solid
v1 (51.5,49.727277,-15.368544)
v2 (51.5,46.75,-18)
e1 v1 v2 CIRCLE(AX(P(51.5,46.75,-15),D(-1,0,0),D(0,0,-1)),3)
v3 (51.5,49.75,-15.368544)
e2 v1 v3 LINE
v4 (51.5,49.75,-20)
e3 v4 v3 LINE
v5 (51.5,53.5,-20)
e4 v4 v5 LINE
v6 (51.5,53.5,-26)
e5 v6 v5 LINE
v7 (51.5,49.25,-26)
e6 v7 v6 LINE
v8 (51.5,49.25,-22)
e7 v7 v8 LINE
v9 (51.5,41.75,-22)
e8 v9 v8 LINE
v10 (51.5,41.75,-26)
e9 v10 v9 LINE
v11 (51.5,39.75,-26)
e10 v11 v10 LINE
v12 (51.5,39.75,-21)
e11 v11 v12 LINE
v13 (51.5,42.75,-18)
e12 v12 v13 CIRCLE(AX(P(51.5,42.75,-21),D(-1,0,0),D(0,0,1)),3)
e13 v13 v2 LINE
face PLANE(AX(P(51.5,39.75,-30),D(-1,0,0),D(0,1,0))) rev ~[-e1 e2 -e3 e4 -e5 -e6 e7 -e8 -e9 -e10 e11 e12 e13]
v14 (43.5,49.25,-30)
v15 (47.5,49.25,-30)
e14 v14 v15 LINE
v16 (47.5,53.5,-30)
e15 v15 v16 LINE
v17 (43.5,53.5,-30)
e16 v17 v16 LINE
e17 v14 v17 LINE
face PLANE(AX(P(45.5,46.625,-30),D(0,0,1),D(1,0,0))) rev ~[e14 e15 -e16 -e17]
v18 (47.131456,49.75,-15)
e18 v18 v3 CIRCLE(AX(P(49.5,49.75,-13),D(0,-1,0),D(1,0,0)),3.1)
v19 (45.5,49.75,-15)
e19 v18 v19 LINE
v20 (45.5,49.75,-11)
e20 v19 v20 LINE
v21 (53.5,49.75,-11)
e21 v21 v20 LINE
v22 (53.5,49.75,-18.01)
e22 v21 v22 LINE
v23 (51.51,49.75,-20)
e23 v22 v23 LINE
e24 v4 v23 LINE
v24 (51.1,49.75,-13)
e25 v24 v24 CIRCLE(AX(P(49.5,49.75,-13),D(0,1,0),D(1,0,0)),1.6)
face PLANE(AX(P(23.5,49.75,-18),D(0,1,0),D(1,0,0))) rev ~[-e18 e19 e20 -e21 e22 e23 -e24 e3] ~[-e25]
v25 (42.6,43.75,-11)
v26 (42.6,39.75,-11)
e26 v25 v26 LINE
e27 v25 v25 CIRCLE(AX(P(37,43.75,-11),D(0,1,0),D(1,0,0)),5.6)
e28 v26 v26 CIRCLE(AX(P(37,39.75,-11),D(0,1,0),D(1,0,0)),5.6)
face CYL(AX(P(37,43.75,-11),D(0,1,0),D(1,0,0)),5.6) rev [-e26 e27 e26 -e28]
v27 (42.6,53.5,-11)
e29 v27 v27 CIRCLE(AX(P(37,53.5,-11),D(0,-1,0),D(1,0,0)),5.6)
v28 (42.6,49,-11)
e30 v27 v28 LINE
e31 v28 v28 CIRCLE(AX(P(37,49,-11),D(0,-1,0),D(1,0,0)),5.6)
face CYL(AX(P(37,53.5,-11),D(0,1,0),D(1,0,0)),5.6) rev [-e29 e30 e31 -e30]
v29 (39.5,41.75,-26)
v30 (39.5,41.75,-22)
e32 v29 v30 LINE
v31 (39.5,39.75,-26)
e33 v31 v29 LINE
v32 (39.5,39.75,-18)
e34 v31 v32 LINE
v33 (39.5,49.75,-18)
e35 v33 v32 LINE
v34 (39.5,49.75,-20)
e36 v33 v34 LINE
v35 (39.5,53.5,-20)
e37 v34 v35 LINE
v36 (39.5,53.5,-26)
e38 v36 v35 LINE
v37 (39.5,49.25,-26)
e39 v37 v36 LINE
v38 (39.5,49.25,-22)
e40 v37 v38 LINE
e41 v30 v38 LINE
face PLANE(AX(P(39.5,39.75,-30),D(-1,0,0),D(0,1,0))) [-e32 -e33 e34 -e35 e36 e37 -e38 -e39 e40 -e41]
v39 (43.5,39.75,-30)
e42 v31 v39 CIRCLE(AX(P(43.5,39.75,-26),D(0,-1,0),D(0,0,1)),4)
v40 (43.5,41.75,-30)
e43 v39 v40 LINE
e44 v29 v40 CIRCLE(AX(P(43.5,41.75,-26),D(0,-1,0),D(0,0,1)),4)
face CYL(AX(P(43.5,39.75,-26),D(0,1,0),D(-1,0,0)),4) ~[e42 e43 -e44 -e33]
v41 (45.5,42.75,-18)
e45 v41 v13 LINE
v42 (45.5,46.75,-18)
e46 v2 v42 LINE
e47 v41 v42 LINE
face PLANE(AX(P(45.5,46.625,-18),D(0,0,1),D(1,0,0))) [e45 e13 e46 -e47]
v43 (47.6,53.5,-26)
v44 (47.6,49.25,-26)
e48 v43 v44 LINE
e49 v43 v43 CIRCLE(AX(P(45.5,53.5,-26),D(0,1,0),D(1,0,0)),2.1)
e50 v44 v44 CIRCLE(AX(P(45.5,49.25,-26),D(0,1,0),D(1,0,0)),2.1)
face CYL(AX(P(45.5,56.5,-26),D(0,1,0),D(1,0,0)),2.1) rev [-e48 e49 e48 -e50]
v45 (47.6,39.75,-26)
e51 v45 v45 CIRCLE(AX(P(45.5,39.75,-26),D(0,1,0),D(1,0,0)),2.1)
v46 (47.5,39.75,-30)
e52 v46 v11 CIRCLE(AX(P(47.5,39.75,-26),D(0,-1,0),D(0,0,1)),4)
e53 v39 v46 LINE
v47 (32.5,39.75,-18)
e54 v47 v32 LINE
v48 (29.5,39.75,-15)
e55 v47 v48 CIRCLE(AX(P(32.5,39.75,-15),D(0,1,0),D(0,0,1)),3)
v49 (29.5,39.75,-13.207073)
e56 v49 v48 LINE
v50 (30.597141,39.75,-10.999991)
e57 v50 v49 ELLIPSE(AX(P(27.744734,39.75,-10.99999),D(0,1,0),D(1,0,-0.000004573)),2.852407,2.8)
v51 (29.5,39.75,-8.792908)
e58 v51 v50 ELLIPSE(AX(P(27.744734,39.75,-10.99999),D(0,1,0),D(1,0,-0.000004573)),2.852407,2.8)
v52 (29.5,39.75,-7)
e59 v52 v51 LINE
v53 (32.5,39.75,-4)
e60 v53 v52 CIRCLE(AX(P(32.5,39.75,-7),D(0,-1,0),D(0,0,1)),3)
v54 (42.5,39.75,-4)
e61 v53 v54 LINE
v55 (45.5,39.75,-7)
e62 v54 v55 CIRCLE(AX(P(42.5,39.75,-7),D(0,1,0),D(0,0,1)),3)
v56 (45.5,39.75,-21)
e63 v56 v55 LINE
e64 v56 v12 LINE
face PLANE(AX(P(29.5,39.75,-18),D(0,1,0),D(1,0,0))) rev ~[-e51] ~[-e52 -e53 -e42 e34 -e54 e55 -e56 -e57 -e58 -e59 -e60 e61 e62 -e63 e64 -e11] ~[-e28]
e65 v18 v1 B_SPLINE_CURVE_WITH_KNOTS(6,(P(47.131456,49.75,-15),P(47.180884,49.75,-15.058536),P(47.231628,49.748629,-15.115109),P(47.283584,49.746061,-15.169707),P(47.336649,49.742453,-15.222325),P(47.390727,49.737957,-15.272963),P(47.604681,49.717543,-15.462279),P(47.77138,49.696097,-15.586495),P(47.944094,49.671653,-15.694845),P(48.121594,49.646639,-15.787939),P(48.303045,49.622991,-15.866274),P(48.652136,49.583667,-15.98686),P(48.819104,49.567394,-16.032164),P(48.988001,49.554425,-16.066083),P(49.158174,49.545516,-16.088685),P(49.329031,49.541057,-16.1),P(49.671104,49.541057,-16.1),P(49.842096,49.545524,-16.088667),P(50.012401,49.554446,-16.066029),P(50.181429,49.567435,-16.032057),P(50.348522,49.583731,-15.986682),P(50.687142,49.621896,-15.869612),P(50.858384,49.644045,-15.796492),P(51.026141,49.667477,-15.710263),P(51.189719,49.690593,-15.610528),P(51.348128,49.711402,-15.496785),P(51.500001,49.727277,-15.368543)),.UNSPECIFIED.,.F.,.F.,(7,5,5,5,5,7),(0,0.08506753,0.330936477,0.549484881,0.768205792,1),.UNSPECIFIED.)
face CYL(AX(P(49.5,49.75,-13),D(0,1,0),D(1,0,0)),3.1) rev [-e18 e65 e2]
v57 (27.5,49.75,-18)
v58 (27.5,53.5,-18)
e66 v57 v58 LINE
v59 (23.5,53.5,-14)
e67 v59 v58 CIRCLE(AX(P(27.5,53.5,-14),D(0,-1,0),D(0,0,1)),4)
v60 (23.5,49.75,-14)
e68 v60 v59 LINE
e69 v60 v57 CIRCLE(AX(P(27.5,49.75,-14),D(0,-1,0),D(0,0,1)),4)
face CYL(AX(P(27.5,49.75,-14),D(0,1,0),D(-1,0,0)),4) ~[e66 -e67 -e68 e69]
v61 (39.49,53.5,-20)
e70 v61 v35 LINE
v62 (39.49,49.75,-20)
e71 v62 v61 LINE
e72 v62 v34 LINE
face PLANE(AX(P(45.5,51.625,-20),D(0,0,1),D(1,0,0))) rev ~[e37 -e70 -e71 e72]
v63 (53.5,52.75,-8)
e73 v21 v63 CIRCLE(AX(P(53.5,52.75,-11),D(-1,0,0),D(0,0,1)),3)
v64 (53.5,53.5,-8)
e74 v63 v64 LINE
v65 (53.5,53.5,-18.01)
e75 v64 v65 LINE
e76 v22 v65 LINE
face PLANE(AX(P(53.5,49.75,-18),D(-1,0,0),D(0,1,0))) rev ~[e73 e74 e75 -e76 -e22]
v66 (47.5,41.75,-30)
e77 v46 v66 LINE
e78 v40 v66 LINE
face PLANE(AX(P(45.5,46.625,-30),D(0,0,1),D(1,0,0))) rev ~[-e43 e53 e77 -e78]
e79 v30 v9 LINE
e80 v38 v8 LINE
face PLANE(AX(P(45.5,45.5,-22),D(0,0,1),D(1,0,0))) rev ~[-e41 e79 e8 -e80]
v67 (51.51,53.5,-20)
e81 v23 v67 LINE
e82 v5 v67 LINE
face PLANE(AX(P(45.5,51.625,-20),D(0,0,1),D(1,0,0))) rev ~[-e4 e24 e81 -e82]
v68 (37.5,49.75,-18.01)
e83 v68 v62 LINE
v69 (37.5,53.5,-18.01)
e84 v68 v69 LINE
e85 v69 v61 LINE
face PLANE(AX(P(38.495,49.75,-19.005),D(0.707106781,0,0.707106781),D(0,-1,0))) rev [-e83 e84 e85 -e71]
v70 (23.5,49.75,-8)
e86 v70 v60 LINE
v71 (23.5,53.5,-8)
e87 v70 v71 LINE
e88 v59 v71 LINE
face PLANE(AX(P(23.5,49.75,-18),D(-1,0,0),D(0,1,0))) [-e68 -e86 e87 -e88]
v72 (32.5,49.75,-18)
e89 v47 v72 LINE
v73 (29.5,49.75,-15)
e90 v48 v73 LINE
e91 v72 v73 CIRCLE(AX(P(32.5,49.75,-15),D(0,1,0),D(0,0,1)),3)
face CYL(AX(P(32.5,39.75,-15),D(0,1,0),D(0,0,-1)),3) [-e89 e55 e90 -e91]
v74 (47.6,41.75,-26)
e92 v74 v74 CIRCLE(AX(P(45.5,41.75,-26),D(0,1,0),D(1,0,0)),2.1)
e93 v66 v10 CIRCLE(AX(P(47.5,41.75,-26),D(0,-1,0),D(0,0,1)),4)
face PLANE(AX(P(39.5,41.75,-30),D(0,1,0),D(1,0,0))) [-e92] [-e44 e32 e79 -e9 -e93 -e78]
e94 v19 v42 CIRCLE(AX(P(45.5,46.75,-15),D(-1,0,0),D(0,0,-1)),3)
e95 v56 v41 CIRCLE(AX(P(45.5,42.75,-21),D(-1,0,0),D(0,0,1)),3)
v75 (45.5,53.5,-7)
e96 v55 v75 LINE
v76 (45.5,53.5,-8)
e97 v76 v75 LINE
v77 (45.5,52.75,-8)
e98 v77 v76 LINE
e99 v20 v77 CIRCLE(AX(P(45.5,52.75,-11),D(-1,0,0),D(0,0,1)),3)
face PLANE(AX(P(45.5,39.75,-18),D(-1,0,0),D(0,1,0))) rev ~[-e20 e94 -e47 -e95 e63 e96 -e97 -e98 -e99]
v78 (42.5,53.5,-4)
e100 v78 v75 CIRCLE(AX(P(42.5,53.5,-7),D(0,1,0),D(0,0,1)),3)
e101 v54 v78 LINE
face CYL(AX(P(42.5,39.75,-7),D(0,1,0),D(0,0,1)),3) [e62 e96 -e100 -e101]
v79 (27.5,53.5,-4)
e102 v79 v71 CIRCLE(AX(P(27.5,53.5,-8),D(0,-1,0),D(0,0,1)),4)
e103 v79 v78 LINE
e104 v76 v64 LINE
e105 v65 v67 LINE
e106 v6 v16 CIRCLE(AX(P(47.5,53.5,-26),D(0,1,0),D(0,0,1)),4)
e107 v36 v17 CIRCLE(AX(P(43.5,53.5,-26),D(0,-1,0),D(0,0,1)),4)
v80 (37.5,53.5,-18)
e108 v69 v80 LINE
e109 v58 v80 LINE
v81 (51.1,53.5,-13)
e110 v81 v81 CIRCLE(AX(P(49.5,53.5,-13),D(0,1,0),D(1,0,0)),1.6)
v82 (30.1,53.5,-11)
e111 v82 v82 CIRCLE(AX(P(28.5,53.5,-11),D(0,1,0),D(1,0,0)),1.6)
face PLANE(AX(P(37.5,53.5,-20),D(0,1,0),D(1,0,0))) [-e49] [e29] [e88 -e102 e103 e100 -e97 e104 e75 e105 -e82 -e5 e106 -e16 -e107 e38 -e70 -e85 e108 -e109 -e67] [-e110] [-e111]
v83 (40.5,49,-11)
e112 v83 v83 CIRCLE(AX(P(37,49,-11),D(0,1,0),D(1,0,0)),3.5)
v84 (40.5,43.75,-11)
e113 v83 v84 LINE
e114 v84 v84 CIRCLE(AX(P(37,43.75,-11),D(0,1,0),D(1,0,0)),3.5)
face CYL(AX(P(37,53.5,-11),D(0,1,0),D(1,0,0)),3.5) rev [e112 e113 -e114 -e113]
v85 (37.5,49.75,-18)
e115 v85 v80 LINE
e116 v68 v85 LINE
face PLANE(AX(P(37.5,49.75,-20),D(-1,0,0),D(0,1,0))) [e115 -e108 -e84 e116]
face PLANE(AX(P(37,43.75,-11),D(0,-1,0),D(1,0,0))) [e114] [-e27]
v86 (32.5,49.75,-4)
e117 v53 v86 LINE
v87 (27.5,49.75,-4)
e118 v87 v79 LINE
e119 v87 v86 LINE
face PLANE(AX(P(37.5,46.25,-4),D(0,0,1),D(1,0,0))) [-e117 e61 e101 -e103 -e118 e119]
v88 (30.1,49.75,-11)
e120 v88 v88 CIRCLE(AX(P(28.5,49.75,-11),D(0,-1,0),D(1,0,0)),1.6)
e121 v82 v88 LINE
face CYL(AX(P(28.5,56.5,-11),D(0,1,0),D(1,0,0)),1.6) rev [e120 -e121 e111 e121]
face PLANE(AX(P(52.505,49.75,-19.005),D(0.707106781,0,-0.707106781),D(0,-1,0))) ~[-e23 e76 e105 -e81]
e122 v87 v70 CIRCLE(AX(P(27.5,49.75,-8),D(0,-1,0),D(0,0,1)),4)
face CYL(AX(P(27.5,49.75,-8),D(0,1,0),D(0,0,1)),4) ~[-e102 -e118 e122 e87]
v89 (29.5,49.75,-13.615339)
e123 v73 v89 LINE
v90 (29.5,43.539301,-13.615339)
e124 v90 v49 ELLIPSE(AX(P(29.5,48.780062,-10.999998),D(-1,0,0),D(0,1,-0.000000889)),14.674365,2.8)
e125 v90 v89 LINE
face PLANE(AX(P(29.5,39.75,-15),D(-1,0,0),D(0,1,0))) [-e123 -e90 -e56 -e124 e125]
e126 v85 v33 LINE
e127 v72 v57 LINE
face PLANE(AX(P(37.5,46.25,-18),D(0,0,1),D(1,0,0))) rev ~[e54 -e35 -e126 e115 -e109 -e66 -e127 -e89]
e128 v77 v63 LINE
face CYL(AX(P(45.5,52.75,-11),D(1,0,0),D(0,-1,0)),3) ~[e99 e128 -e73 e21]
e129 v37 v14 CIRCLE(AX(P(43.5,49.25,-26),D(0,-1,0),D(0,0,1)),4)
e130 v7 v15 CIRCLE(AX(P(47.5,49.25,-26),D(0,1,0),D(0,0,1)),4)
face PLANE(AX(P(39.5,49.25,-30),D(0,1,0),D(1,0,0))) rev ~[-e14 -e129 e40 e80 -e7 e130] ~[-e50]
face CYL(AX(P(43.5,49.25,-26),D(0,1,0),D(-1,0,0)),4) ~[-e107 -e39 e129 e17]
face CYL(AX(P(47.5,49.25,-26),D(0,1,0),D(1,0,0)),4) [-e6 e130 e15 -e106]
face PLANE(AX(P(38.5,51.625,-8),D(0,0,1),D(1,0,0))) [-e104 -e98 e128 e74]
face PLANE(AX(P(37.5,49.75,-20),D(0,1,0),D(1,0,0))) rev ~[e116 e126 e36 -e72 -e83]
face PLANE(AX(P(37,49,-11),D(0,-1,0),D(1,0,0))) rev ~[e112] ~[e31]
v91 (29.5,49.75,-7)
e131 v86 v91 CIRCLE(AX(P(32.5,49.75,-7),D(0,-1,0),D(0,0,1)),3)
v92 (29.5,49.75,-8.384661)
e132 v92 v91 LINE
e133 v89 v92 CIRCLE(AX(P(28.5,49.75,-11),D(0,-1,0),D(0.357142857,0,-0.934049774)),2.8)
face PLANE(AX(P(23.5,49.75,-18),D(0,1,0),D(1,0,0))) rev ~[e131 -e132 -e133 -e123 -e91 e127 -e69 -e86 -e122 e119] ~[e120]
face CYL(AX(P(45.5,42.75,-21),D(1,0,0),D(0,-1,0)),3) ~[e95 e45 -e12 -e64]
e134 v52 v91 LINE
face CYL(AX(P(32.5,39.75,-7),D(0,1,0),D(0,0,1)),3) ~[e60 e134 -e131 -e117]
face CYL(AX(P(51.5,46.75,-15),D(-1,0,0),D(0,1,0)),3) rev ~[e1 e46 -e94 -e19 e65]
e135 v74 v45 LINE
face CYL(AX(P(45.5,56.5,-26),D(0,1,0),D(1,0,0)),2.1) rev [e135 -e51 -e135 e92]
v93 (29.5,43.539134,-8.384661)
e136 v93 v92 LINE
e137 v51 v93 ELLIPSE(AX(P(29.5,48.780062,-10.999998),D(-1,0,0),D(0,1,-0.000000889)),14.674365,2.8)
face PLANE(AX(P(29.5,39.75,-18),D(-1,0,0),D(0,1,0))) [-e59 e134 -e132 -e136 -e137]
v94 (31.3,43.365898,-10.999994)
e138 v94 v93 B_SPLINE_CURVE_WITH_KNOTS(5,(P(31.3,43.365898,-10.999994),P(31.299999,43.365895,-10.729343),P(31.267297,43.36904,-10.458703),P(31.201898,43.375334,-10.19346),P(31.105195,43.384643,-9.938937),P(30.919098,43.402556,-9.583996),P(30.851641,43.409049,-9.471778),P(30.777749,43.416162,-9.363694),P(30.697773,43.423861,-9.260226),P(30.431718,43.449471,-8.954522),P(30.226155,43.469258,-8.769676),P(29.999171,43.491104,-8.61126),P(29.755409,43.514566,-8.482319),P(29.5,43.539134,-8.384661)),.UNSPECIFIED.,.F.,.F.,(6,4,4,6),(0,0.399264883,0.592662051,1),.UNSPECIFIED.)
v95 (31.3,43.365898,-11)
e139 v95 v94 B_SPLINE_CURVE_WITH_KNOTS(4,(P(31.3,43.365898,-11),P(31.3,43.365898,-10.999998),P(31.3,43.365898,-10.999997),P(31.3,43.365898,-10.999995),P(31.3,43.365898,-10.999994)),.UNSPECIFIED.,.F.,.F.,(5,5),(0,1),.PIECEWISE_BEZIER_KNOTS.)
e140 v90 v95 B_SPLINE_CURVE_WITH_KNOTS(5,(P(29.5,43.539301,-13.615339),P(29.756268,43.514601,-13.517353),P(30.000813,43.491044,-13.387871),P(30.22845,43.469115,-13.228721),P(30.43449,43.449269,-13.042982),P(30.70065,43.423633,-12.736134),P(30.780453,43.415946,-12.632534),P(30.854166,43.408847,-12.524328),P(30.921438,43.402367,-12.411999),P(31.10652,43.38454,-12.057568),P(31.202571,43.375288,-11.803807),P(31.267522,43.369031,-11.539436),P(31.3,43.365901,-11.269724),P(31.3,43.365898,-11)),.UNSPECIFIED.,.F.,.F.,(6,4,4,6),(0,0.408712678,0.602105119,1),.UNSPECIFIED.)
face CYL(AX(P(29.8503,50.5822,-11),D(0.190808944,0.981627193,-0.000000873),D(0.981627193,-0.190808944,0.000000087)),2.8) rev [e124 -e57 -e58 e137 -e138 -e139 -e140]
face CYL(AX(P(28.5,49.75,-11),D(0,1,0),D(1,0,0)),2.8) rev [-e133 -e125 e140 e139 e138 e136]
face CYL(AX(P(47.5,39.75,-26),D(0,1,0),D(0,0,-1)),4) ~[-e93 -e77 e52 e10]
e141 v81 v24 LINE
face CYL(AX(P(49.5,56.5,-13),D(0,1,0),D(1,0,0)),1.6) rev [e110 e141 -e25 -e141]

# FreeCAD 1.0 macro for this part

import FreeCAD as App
import Part
import Sketcher

V = App.Vector


def edges_at(feature, points):
    """Names of the edges that pass closest to the given points."""
    edges = feature.Shape.Edges
    near = lambda p: min(range(len(edges)), key=lambda i: edges[i].distToShape(Part.Vertex(*p))[0])
    return sorted({f"Edge{near(p) + 1}" for p in points})

doc = App.newDocument("Part")
params = doc.addObject("Spreadsheet::Sheet", "Params")
for row, (alias, value) in enumerate([
    ("sketch1_diameter", "6.2 mm"),
    ("pad1_length", "5 mm"),
    ("sketch2_diameter", "11.2 mm"),
    ("pad2_length", "4.5 mm"),
    ("sketch3_diameter", "11.2 mm"),
    ("pad3_length", "4 mm"),
    ("sketch4_diameter", "7 mm"),
    ("pad4_length", "14 mm"),
    ("sketch5_diameter", "3.2 mm"),
    ("pad5_length", "20 mm"),
    ("sketch6_diameter", "4.2 mm"),
    ("pad6_length", "20 mm"),
    ("sketch7_diameter", "3.2 mm"),
    ("pad7_length", "6.75 mm"),
    ("sketch8_diameter", "5.6 mm"),
    ("pad8_length", "10 mm"),
    ("sketch9_width", "16 mm"),
    ("sketch9_height", "13 mm"),
    ("pad9_length", "14 mm"),
    ("sketch10_width", "12 mm"),
    ("sketch10_height", "7.5 mm"),
    ("pad10_length", "8 mm"),
    ("sketch11_width", "12 mm"),
    ("sketch11_height", "13.75 mm"),
    ("pad11_length", "12 mm"),
    ("sketch12_width", "30 mm"),
    ("sketch12_height", "3.75 mm"),
    ("pad12_length", "10 mm"),
    ("sketch13_width", "22 mm"),
    ("sketch13_height", "3.75 mm"),
    ("pad13_length", "14 mm"),
    ("fillet_radius", "4 mm"),
    ("fillet2_radius", "3 mm"),
    ("fillet3_radius", "3 mm"),
    ("fillet4_radius", "4 mm"),
    ("fillet5_radius", "3 mm"),
    ("sketch14_width", "16 mm"),
    ("sketch14_height", "3.75 mm"),
    ("pad14_length", "2 mm"),
    ("chamfer_size", "1.99 mm"),
    ("sketch15_diameter", "5.6 mm"),
    ("pad15_length", "11 mm"),
    ("sketch16_height", "10 mm"),
    ("sketch16_width", "1.9 mm"),
    ("pad16_length", "8 mm"),
], start=1):
    params.set(f"A{row}", alias)
    params.set(f"B{row}", "=" + value)
    params.setAlias(f"B{row}", alias)

body = doc.addObject("PartDesign::Body", "Body")

sketch1 = doc.addObject("Sketcher::SketchObject", "Sketch")
body.addObject(sketch1)
sketch1.AttachmentSupport = (doc.XY_Plane, [""])
sketch1.MapMode = "FlatFace"
sketch1.addGeometry(Part.Circle(V(0, 0, 0), V(0, 0, 1), 3.1), False)
sketch1.addConstraint([
    Sketcher.Constraint("Coincident", 0, 3, -1, 1),
    Sketcher.Constraint("Diameter", 0, 6.2),
])
sketch1.setExpression("Constraints[1]", "Params.sketch1_diameter")
pad1 = doc.addObject("PartDesign::Pad", "Pad")
body.addObject(pad1)
pad1.Profile = sketch1
pad1.setExpression("Length", "Params.pad1_length")
body2 = doc.addObject("PartDesign::Body", "Body001")
doc.recompute()

body.Placement = App.Placement(V(0, 0, 0), App.Rotation(V(1, 0, 0), 90))
boolean = doc.addObject("PartDesign::Boolean", "Boolean")
body2.addObject(boolean)
boolean.Type = "Fuse"
boolean.addObjects([body])
body3 = doc.addObject("PartDesign::Body", "Body002")
doc.recompute()

body2.Placement = App.Placement(V(49.5, 49.75, -13), App.Rotation(V(0, 0, 1), 0))
boolean2 = doc.addObject("PartDesign::Boolean", "Boolean001")
body3.addObject(boolean2)
boolean2.Type = "Fuse"
boolean2.addObjects([body2])
body4 = doc.addObject("PartDesign::Body", "Body003")

sketch2 = doc.addObject("Sketcher::SketchObject", "Sketch001")
body4.addObject(sketch2)
sketch2.AttachmentSupport = (doc.getObject("XY_Plane003"), [""])
sketch2.MapMode = "FlatFace"
sketch2.addGeometry(Part.Circle(V(0, 0, 0), V(0, 0, 1), 6), False)
sketch2.addConstraint([
    Sketcher.Constraint("Coincident", 0, 3, -1, 1),
    Sketcher.Constraint("Diameter", 0, 11.2),
])
sketch2.setExpression("Constraints[1]", "Params.sketch2_diameter")
pad2 = doc.addObject("PartDesign::Pad", "Pad001")
body4.addObject(pad2)
pad2.Profile = sketch2
pad2.setExpression("Length", "Params.pad2_length")
body5 = doc.addObject("PartDesign::Body", "Body004")
doc.recompute()

body4.Placement = App.Placement(V(0, 0, 0), App.Rotation(V(1, 0, 0), 90))
boolean3 = doc.addObject("PartDesign::Boolean", "Boolean002")
body5.addObject(boolean3)
boolean3.Type = "Fuse"
boolean3.addObjects([body4])
body6 = doc.addObject("PartDesign::Body", "Body005")
doc.recompute()

body5.Placement = App.Placement(V(38, 53.5, -11), App.Rotation(V(0, 0, 1), 0))
boolean4 = doc.addObject("PartDesign::Boolean", "Boolean003")
body6.addObject(boolean4)
boolean4.Type = "Fuse"
boolean4.addObjects([body5])
body7 = doc.addObject("PartDesign::Body", "Body006")

sketch3 = doc.addObject("Sketcher::SketchObject", "Sketch002")
body7.addObject(sketch3)
sketch3.AttachmentSupport = (doc.getObject("XY_Plane006"), [""])
sketch3.MapMode = "FlatFace"
sketch3.addGeometry(Part.Circle(V(0, 0, 0), V(0, 0, 1), 6), False)
sketch3.addConstraint([
    Sketcher.Constraint("Coincident", 0, 3, -1, 1),
    Sketcher.Constraint("Diameter", 0, 11.2),
])
sketch3.setExpression("Constraints[1]", "Params.sketch3_diameter")
pad3 = doc.addObject("PartDesign::Pad", "Pad002")
body7.addObject(pad3)
pad3.Profile = sketch3
pad3.setExpression("Length", "Params.pad3_length")
body8 = doc.addObject("PartDesign::Body", "Body007")
doc.recompute()

body7.Placement = App.Placement(V(0, 0, 0), App.Rotation(V(1, 0, 0), 90))
boolean5 = doc.addObject("PartDesign::Boolean", "Boolean004")
body8.addObject(boolean5)
boolean5.Type = "Fuse"
boolean5.addObjects([body7])
body9 = doc.addObject("PartDesign::Body", "Body008")
doc.recompute()

body8.Placement = App.Placement(V(38, 43.75, -11), App.Rotation(V(0, 0, 1), 0))
boolean6 = doc.addObject("PartDesign::Boolean", "Boolean005")
body9.addObject(boolean6)
boolean6.Type = "Fuse"
boolean6.addObjects([body8])
body10 = doc.addObject("PartDesign::Body", "Body009")

sketch4 = doc.addObject("Sketcher::SketchObject", "Sketch003")
body10.addObject(sketch4)
sketch4.AttachmentSupport = (doc.getObject("XY_Plane009"), [""])
sketch4.MapMode = "FlatFace"
sketch4.addGeometry(Part.Circle(V(0, 0, 0), V(0, 0, 1), 3.5), False)
sketch4.addConstraint([
    Sketcher.Constraint("Coincident", 0, 3, -1, 1),
    Sketcher.Constraint("Diameter", 0, 7.0),
])
sketch4.setExpression("Constraints[1]", "Params.sketch4_diameter")
pad4 = doc.addObject("PartDesign::Pad", "Pad003")
body10.addObject(pad4)
pad4.Profile = sketch4
pad4.setExpression("Length", "Params.pad4_length")
body11 = doc.addObject("PartDesign::Body", "Body010")
doc.recompute()

body10.Placement = App.Placement(V(0, 0, 0), App.Rotation(V(1, 0, 0), 90))
boolean7 = doc.addObject("PartDesign::Boolean", "Boolean006")
body11.addObject(boolean7)
boolean7.Type = "Fuse"
boolean7.addObjects([body10])
body12 = doc.addObject("PartDesign::Body", "Body011")
doc.recompute()

body11.Placement = App.Placement(V(38, 53.5, -11), App.Rotation(V(0, 0, 1), 0))
boolean8 = doc.addObject("PartDesign::Boolean", "Boolean007")
body12.addObject(boolean8)
boolean8.Type = "Fuse"
boolean8.addObjects([body11])
doc.recompute()

boolean9 = doc.addObject("PartDesign::Boolean", "Boolean008")
body12.addObject(boolean9)
boolean9.Type = "Fuse"
boolean9.addObjects([body6])
doc.recompute()

boolean10 = doc.addObject("PartDesign::Boolean", "Boolean009")
body12.addObject(boolean10)
boolean10.Type = "Fuse"
boolean10.addObjects([body9])
body13 = doc.addObject("PartDesign::Body", "Body012")
doc.recompute()

body12.Placement = App.Placement(V(-1, 0, 0), App.Rotation(V(0, 0, 1), 0))
boolean11 = doc.addObject("PartDesign::Boolean", "Boolean010")
body13.addObject(boolean11)
boolean11.Type = "Fuse"
boolean11.addObjects([body12])
body14 = doc.addObject("PartDesign::Body", "Body013")

sketch5 = doc.addObject("Sketcher::SketchObject", "Sketch004")
body14.addObject(sketch5)
sketch5.AttachmentSupport = (doc.getObject("XY_Plane013"), [""])
sketch5.MapMode = "FlatFace"
sketch5.addGeometry(Part.Circle(V(0, 0, 0), V(0, 0, 1), 1.6), False)
sketch5.addConstraint([
    Sketcher.Constraint("Coincident", 0, 3, -1, 1),
    Sketcher.Constraint("Diameter", 0, 3.2),
])
sketch5.setExpression("Constraints[1]", "Params.sketch5_diameter")
pad5 = doc.addObject("PartDesign::Pad", "Pad004")
body14.addObject(pad5)
pad5.Profile = sketch5
pad5.setExpression("Length", "Params.pad5_length")
body15 = doc.addObject("PartDesign::Body", "Body014")
doc.recompute()

body14.Placement = App.Placement(V(0, 0, 0), App.Rotation(V(1, 0, 0), 90))
boolean12 = doc.addObject("PartDesign::Boolean", "Boolean011")
body15.addObject(boolean12)
boolean12.Type = "Fuse"
boolean12.addObjects([body14])
body16 = doc.addObject("PartDesign::Body", "Body015")
doc.recompute()

body15.Placement = App.Placement(V(49.5, 56.5, -13), App.Rotation(V(0, 0, 1), 0))
boolean13 = doc.addObject("PartDesign::Boolean", "Boolean012")
body16.addObject(boolean13)
boolean13.Type = "Fuse"
boolean13.addObjects([body15])
body17 = doc.addObject("PartDesign::Body", "Body016")

sketch6 = doc.addObject("Sketcher::SketchObject", "Sketch005")
body17.addObject(sketch6)
sketch6.AttachmentSupport = (doc.getObject("XY_Plane016"), [""])
sketch6.MapMode = "FlatFace"
sketch6.addGeometry(Part.Circle(V(0, 0, 0), V(0, 0, 1), 2.1), False)
sketch6.addConstraint([
    Sketcher.Constraint("Coincident", 0, 3, -1, 1),
    Sketcher.Constraint("Diameter", 0, 4.2),
])
sketch6.setExpression("Constraints[1]", "Params.sketch6_diameter")
pad6 = doc.addObject("PartDesign::Pad", "Pad005")
body17.addObject(pad6)
pad6.Profile = sketch6
pad6.setExpression("Length", "Params.pad6_length")
body18 = doc.addObject("PartDesign::Body", "Body017")
doc.recompute()

body17.Placement = App.Placement(V(0, 0, 0), App.Rotation(V(1, 0, 0), 90))
boolean14 = doc.addObject("PartDesign::Boolean", "Boolean013")
body18.addObject(boolean14)
boolean14.Type = "Fuse"
boolean14.addObjects([body17])
body19 = doc.addObject("PartDesign::Body", "Body018")
doc.recompute()

body18.Placement = App.Placement(V(45.5, 56.5, -26), App.Rotation(V(0, 0, 1), 0))
boolean15 = doc.addObject("PartDesign::Boolean", "Boolean014")
body19.addObject(boolean15)
boolean15.Type = "Fuse"
boolean15.addObjects([body18])
body20 = doc.addObject("PartDesign::Body", "Body019")

sketch7 = doc.addObject("Sketcher::SketchObject", "Sketch006")
body20.addObject(sketch7)
sketch7.AttachmentSupport = (doc.getObject("XY_Plane019"), [""])
sketch7.MapMode = "FlatFace"
sketch7.addGeometry(Part.Circle(V(0, 0, 0), V(0, 0, 1), 1.6), False)
sketch7.addConstraint([
    Sketcher.Constraint("Coincident", 0, 3, -1, 1),
    Sketcher.Constraint("Diameter", 0, 3.2),
])
sketch7.setExpression("Constraints[1]", "Params.sketch7_diameter")
pad7 = doc.addObject("PartDesign::Pad", "Pad006")
body20.addObject(pad7)
pad7.Profile = sketch7
pad7.setExpression("Length", "Params.pad7_length")
body21 = doc.addObject("PartDesign::Body", "Body020")
doc.recompute()

body20.Placement = App.Placement(V(0, 0, 0), App.Rotation(V(1, 0, 0), 90))
boolean16 = doc.addObject("PartDesign::Boolean", "Boolean015")
body21.addObject(boolean16)
boolean16.Type = "Fuse"
boolean16.addObjects([body20])
body22 = doc.addObject("PartDesign::Body", "Body021")
body22.AllowCompound = True
doc.recompute()

body21.Placement = App.Placement(V(28.5, 56.5, -11), App.Rotation(V(0, 0, 1), 0))
boolean17 = doc.addObject("PartDesign::Boolean", "Boolean016")
body22.addObject(boolean17)
boolean17.Type = "Fuse"
boolean17.addObjects([body21])
doc.recompute()

boolean18 = doc.addObject("PartDesign::Boolean", "Boolean017")
body22.addObject(boolean18)
boolean18.Type = "Fuse"
boolean18.addObjects([body16])
doc.recompute()

boolean19 = doc.addObject("PartDesign::Boolean", "Boolean018")
body22.addObject(boolean19)
boolean19.Type = "Fuse"
boolean19.addObjects([body19])
body23 = doc.addObject("PartDesign::Body", "Body022")

sketch8 = doc.addObject("Sketcher::SketchObject", "Sketch007")
body23.addObject(sketch8)
sketch8.AttachmentSupport = (doc.getObject("XY_Plane022"), [""])
sketch8.MapMode = "FlatFace"
sketch8.addGeometry(Part.Circle(V(0, 0, 0), V(0, 0, 1), 2.8), False)
sketch8.addConstraint([
    Sketcher.Constraint("Coincident", 0, 3, -1, 1),
    Sketcher.Constraint("Diameter", 0, 5.6),
])
sketch8.setExpression("Constraints[1]", "Params.sketch8_diameter")
pad8 = doc.addObject("PartDesign::Pad", "Pad007")
body23.addObject(pad8)
pad8.Profile = sketch8
pad8.setExpression("Length", "Params.pad8_length")
body24 = doc.addObject("PartDesign::Body", "Body023")
doc.recompute()

body23.Placement = App.Placement(V(0, 0, 0), App.Rotation(V(1, 0, 0), 90))
boolean20 = doc.addObject("PartDesign::Boolean", "Boolean019")
body24.addObject(boolean20)
boolean20.Type = "Fuse"
boolean20.addObjects([body23])
body25 = doc.addObject("PartDesign::Body", "Body024")
doc.recompute()

body24.Placement = App.Placement(V(28.5, 49.75, -11), App.Rotation(V(0, 0, 1), 0))
boolean21 = doc.addObject("PartDesign::Boolean", "Boolean020")
body25.addObject(boolean21)
boolean21.Type = "Fuse"
boolean21.addObjects([body24])
body26 = doc.addObject("PartDesign::Body", "Body025")

sketch9 = doc.addObject("Sketcher::SketchObject", "Sketch008")
body26.addObject(sketch9)
sketch9.AttachmentSupport = (doc.getObject("XY_Plane025"), [""])
sketch9.MapMode = "FlatFace"
sketch9.AttachmentOffset = App.Placement(V(0, 0, -18), App.Rotation())
sketch9.addGeometry([
    Part.LineSegment(V(30, 53, 0), V(30, 40, 0)),
    Part.LineSegment(V(30, 40, 0), V(46, 40, 0)),
    Part.LineSegment(V(46, 40, 0), V(46, 53, 0)),
    Part.LineSegment(V(46, 53, 0), V(30, 53, 0)),
], False)
sketch9.addConstraint([
    Sketcher.Constraint("Coincident", 0, 2, 1, 1),
    Sketcher.Constraint("Coincident", 1, 2, 2, 1),
    Sketcher.Constraint("Coincident", 2, 2, 3, 1),
    Sketcher.Constraint("Coincident", 3, 2, 0, 1),
    Sketcher.Constraint("Vertical", 0),
    Sketcher.Constraint("Horizontal", 1),
    Sketcher.Constraint("Vertical", 2),
    Sketcher.Constraint("Horizontal", 3),
    Sketcher.Constraint("DistanceX", 1, 1, 1, 2, 16.0),
    Sketcher.Constraint("DistanceY", 0, 2, 0, 1, 13.0),
    Sketcher.Constraint("DistanceX", -1, 1, 0, 2, 29.5),
    Sketcher.Constraint("DistanceY", -1, 1, 0, 2, 39.75),
])
sketch9.setExpression("Constraints[8]", "Params.sketch9_width")
sketch9.setExpression("Constraints[9]", "Params.sketch9_height")
pad9 = doc.addObject("PartDesign::Pad", "Pad008")
body26.addObject(pad9)
pad9.Profile = sketch9
pad9.setExpression("Length", "Params.pad9_length")
body27 = doc.addObject("PartDesign::Body", "Body026")

sketch10 = doc.addObject("Sketcher::SketchObject", "Sketch009")
body27.addObject(sketch10)
sketch10.AttachmentSupport = (doc.getObject("XY_Plane026"), [""])
sketch10.MapMode = "FlatFace"
sketch10.AttachmentOffset = App.Placement(V(0, 0, -32), App.Rotation())
sketch10.addGeometry([
    Part.LineSegment(V(390, 49, 0), V(390, 42, 0)),
    Part.LineSegment(V(390, 42, 0), V(402, 42, 0)),
    Part.LineSegment(V(402, 42, 0), V(402, 49, 0)),
    Part.LineSegment(V(402, 49, 0), V(390, 49, 0)),
], False)
sketch10.addConstraint([
    Sketcher.Constraint("Coincident", 0, 2, 1, 1),
    Sketcher.Constraint("Coincident", 1, 2, 2, 1),
    Sketcher.Constraint("Coincident", 2, 2, 3, 1),
    Sketcher.Constraint("Coincident", 3, 2, 0, 1),
    Sketcher.Constraint("Vertical", 0),
    Sketcher.Constraint("Horizontal", 1),
    Sketcher.Constraint("Vertical", 2),
    Sketcher.Constraint("Horizontal", 3),
    Sketcher.Constraint("DistanceX", 1, 1, 1, 2, 12.0),
    Sketcher.Constraint("DistanceY", 0, 2, 0, 1, 7.5),
    Sketcher.Constraint("DistanceX", -1, 1, 0, 2, 389.5),
    Sketcher.Constraint("DistanceY", -1, 1, 0, 2, 41.75),
])
sketch10.setExpression("Constraints[8]", "Params.sketch10_width")
sketch10.setExpression("Constraints[9]", "Params.sketch10_height")
pad10 = doc.addObject("PartDesign::Pad", "Pad009")
body27.addObject(pad10)
pad10.Profile = sketch10
pad10.setExpression("Length", "Params.pad10_length")
body28 = doc.addObject("PartDesign::Body", "Body027")

sketch11 = doc.addObject("Sketcher::SketchObject", "Sketch010")
body28.addObject(sketch11)
sketch11.AttachmentSupport = (doc.getObject("XY_Plane027"), [""])
sketch11.MapMode = "FlatFace"
sketch11.AttachmentOffset = App.Placement(V(0, 0, -32), App.Rotation())
sketch11.addGeometry([
    Part.LineSegment(V(390, 54, 0), V(390, 40, 0)),
    Part.LineSegment(V(390, 40, 0), V(402, 40, 0)),
    Part.LineSegment(V(402, 40, 0), V(402, 54, 0)),
    Part.LineSegment(V(402, 54, 0), V(390, 54, 0)),
], False)
sketch11.addConstraint([
    Sketcher.Constraint("Coincident", 0, 2, 1, 1),
    Sketcher.Constraint("Coincident", 1, 2, 2, 1),
    Sketcher.Constraint("Coincident", 2, 2, 3, 1),
    Sketcher.Constraint("Coincident", 3, 2, 0, 1),
    Sketcher.Constraint("Vertical", 0),
    Sketcher.Constraint("Horizontal", 1),
    Sketcher.Constraint("Vertical", 2),
    Sketcher.Constraint("Horizontal", 3),
    Sketcher.Constraint("DistanceX", 1, 1, 1, 2, 12.0),
    Sketcher.Constraint("DistanceY", 0, 2, 0, 1, 13.75),
    Sketcher.Constraint("DistanceX", -1, 1, 0, 2, 389.5),
    Sketcher.Constraint("DistanceY", -1, 1, 2, 2, 53.5),
])
sketch11.setExpression("Constraints[8]", "Params.sketch11_width")
sketch11.setExpression("Constraints[9]", "Params.sketch11_height")
pad11 = doc.addObject("PartDesign::Pad", "Pad010")
body28.addObject(pad11)
pad11.Profile = sketch11
pad11.setExpression("Length", "Params.pad11_length")
doc.recompute()

boolean22 = doc.addObject("PartDesign::Boolean", "Boolean021")
body28.addObject(boolean22)
boolean22.Type = "Cut"
boolean22.addObjects([body27])
body29 = doc.addObject("PartDesign::Body", "Body028")

sketch12 = doc.addObject("Sketcher::SketchObject", "Sketch011")
body29.addObject(sketch12)
sketch12.AttachmentSupport = (doc.getObject("XY_Plane028"), [""])
sketch12.MapMode = "FlatFace"
sketch12.AttachmentOffset = App.Placement(V(0, 0, -20), App.Rotation())
sketch12.addGeometry([
    Part.LineSegment(V(373.5, 53.5, 0), V(373.5, 49.8, 0)),
    Part.LineSegment(V(373.5, 49.8, 0), V(403.5, 49.8, 0)),
    Part.LineSegment(V(403.5, 49.8, 0), V(403.5, 53.5, 0)),
    Part.LineSegment(V(403.5, 53.5, 0), V(373.5, 53.5, 0)),
], False)
sketch12.addConstraint([
    Sketcher.Constraint("Coincident", 0, 2, 1, 1),
    Sketcher.Constraint("Coincident", 1, 2, 2, 1),
    Sketcher.Constraint("Coincident", 2, 2, 3, 1),
    Sketcher.Constraint("Coincident", 3, 2, 0, 1),
    Sketcher.Constraint("Vertical", 0),
    Sketcher.Constraint("Horizontal", 1),
    Sketcher.Constraint("Vertical", 2),
    Sketcher.Constraint("Horizontal", 3),
    Sketcher.Constraint("DistanceX", 1, 1, 1, 2, 30.0),
    Sketcher.Constraint("DistanceY", 0, 2, 0, 1, 3.75),
    Sketcher.Constraint("DistanceX", -1, 1, 0, 2, 373.5),
    Sketcher.Constraint("DistanceY", -1, 1, 2, 2, 53.5),
])
sketch12.setExpression("Constraints[8]", "Params.sketch12_width")
sketch12.setExpression("Constraints[9]", "Params.sketch12_height")
pad12 = doc.addObject("PartDesign::Pad", "Pad011")
body29.addObject(pad12)
pad12.Profile = sketch12
pad12.setExpression("Length", "Params.pad12_length")
doc.recompute()

boolean23 = doc.addObject("PartDesign::Boolean", "Boolean022")
body29.addObject(boolean23)
boolean23.Type = "Fuse"
boolean23.addObjects([body28])
body30 = doc.addObject("PartDesign::Body", "Body029")
doc.recompute()

body29.Placement = App.Placement(V(-350, 0, 2), App.Rotation(V(0, 0, 1), 0))
boolean24 = doc.addObject("PartDesign::Boolean", "Boolean023")
body30.addObject(boolean24)
boolean24.Type = "Fuse"
boolean24.addObjects([body29])
body31 = doc.addObject("PartDesign::Body", "Body030")

sketch13 = doc.addObject("Sketcher::SketchObject", "Sketch012")
body31.addObject(sketch13)
sketch13.AttachmentSupport = (doc.getObject("XY_Plane030"), [""])
sketch13.MapMode = "FlatFace"
sketch13.AttachmentOffset = App.Placement(V(0, 0, -18), App.Rotation())
sketch13.addGeometry([
    Part.LineSegment(V(23.5, 53.5, 0), V(23.5, 49.8, 0)),
    Part.LineSegment(V(23.5, 49.8, 0), V(45.5, 49.8, 0)),
    Part.LineSegment(V(45.5, 49.8, 0), V(45.5, 53.5, 0)),
    Part.LineSegment(V(45.5, 53.5, 0), V(23.5, 53.5, 0)),
], False)
sketch13.addConstraint([
    Sketcher.Constraint("Coincident", 0, 2, 1, 1),
    Sketcher.Constraint("Coincident", 1, 2, 2, 1),
    Sketcher.Constraint("Coincident", 2, 2, 3, 1),
    Sketcher.Constraint("Coincident", 3, 2, 0, 1),
    Sketcher.Constraint("Vertical", 0),
    Sketcher.Constraint("Horizontal", 1),
    Sketcher.Constraint("Vertical", 2),
    Sketcher.Constraint("Horizontal", 3),
    Sketcher.Constraint("DistanceX", 1, 1, 1, 2, 22.0),
    Sketcher.Constraint("DistanceY", 0, 2, 0, 1, 3.75),
    Sketcher.Constraint("DistanceX", -1, 1, 0, 2, 23.5),
    Sketcher.Constraint("DistanceY", -1, 1, 2, 2, 53.5),
])
sketch13.setExpression("Constraints[8]", "Params.sketch13_width")
sketch13.setExpression("Constraints[9]", "Params.sketch13_height")
pad13 = doc.addObject("PartDesign::Pad", "Pad012")
body31.addObject(pad13)
pad13.Profile = sketch13
pad13.setExpression("Length", "Params.pad13_length")
doc.recompute()

boolean25 = doc.addObject("PartDesign::Boolean", "Boolean024")
body31.addObject(boolean25)
boolean25.Type = "Fuse"
boolean25.addObjects([body30])
doc.recompute()

boolean26 = doc.addObject("PartDesign::Boolean", "Boolean025")
body31.addObject(boolean26)
boolean26.Type = "Fuse"
boolean26.addObjects([body26])
doc.recompute()

boolean27 = doc.addObject("PartDesign::Boolean", "Boolean026")
body31.addObject(boolean27)
boolean27.Type = "Cut"
boolean27.addObjects([body25])
doc.recompute()

boolean28 = doc.addObject("PartDesign::Boolean", "Boolean027")
body31.addObject(boolean28)
boolean28.Type = "Cut"
boolean28.addObjects([body22])
doc.recompute()

boolean29 = doc.addObject("PartDesign::Boolean", "Boolean028")
body31.addObject(boolean29)
boolean29.Type = "Cut"
boolean29.addObjects([body13])
doc.recompute()

fillet = doc.addObject("PartDesign::Fillet", "Fillet")
body31.addObject(fillet)
fillet.Base = (boolean29, edges_at(boolean29, [
    (51.5, 40.75, -30),
    (51.5, 51.375, -30),
    (39.5, 40.75, -30),
    (39.5, 51.375, -30),
]))
fillet.setExpression("Radius", "Params.fillet_radius")
doc.recompute()

fillet2 = doc.addObject("PartDesign::Fillet", "Fillet001")
body31.addObject(fillet2)
fillet2.Base = (fillet, edges_at(fillet, [(49.5, 49.75, -8), (48.5, 39.75, -18)]))
fillet2.setExpression("Radius", "Params.fillet2_radius")
doc.recompute()

fillet3 = doc.addObject("PartDesign::Fillet", "Fillet002")
body31.addObject(fillet3)
fillet3.Base = (fillet2, edges_at(fillet2, [(48.5, 49.75, -18)]))
fillet3.setExpression("Radius", "Params.fillet3_radius")
doc.recompute()

boolean30 = doc.addObject("PartDesign::Boolean", "Boolean029")
body31.addObject(boolean30)
boolean30.Type = "Cut"
boolean30.addObjects([body3])
doc.recompute()

fillet4 = doc.addObject("PartDesign::Fillet", "Fillet003")
body31.addObject(fillet4)
fillet4.Base = (boolean30, edges_at(boolean30, [(23.5, 51.625, -18), (23.5, 51.625, -4)]))
fillet4.setExpression("Radius", "Params.fillet4_radius")
doc.recompute()

fillet5 = doc.addObject("PartDesign::Fillet", "Fillet004")
body31.addObject(fillet5)
fillet5.Base = (fillet4, edges_at(fillet4, [(29.5, 44.75, -18), (45.5, 46.625, -4), (29.5, 44.75, -4)]))
fillet5.setExpression("Radius", "Params.fillet5_radius")
body32 = doc.addObject("PartDesign::Body", "Body031")

sketch14 = doc.addObject("Sketcher::SketchObject", "Sketch013")
body32.addObject(sketch14)
sketch14.AttachmentSupport = (doc.getObject("XY_Plane031"), [""])
sketch14.MapMode = "FlatFace"
sketch14.AttachmentOffset = App.Placement(V(0, 0, -20), App.Rotation())
sketch14.addGeometry([
    Part.LineSegment(V(37.5, 53.5, 0), V(37.5, 49.8, 0)),
    Part.LineSegment(V(37.5, 49.8, 0), V(53.5, 49.8, 0)),
    Part.LineSegment(V(53.5, 49.8, 0), V(53.5, 53.5, 0)),
    Part.LineSegment(V(53.5, 53.5, 0), V(37.5, 53.5, 0)),
], False)
sketch14.addConstraint([
    Sketcher.Constraint("Coincident", 0, 2, 1, 1),
    Sketcher.Constraint("Coincident", 1, 2, 2, 1),
    Sketcher.Constraint("Coincident", 2, 2, 3, 1),
    Sketcher.Constraint("Coincident", 3, 2, 0, 1),
    Sketcher.Constraint("Vertical", 0),
    Sketcher.Constraint("Horizontal", 1),
    Sketcher.Constraint("Vertical", 2),
    Sketcher.Constraint("Horizontal", 3),
    Sketcher.Constraint("DistanceX", 1, 1, 1, 2, 16.0),
    Sketcher.Constraint("DistanceY", 0, 2, 0, 1, 3.75),
    Sketcher.Constraint("DistanceX", -1, 1, 0, 2, 37.5),
    Sketcher.Constraint("DistanceY", -1, 1, 2, 2, 53.5),
])
sketch14.setExpression("Constraints[8]", "Params.sketch14_width")
sketch14.setExpression("Constraints[9]", "Params.sketch14_height")
pad14 = doc.addObject("PartDesign::Pad", "Pad013")
body32.addObject(pad14)
pad14.Profile = sketch14
pad14.setExpression("Length", "Params.pad14_length")
doc.recompute()

chamfer = doc.addObject("PartDesign::Chamfer", "Chamfer")
body32.addObject(chamfer)
chamfer.Base = (pad14, edges_at(pad14, [(37.5, 51.625, -20), (53.5, 51.625, -20)]))
chamfer.setExpression("Size", "Params.chamfer_size")
body33 = doc.addObject("PartDesign::Body", "Body032")

sketch15 = doc.addObject("Sketcher::SketchObject", "Sketch014")
body33.addObject(sketch15)
sketch15.AttachmentSupport = (doc.getObject("XY_Plane032"), [""])
sketch15.MapMode = "FlatFace"
sketch15.addGeometry(Part.Circle(V(0, 0, 0), V(0, 0, 1), 2.8), False)
sketch15.addConstraint([
    Sketcher.Constraint("Coincident", 0, 3, -1, 1),
    Sketcher.Constraint("Diameter", 0, 5.6),
])
sketch15.setExpression("Constraints[1]", "Params.sketch15_diameter")
pad15 = doc.addObject("PartDesign::Pad", "Pad014")
body33.addObject(pad15)
pad15.Profile = sketch15
pad15.setExpression("Length", "Params.pad15_length")
body34 = doc.addObject("PartDesign::Body", "Body033")
doc.recompute()

body33.Placement = App.Placement(V(0, 0, 0), App.Rotation(V(1, 0, 0), 89.99995))
boolean31 = doc.addObject("PartDesign::Boolean", "Boolean030")
body34.addObject(boolean31)
boolean31.Type = "Fuse"
boolean31.addObjects([body33])
body35 = doc.addObject("PartDesign::Body", "Body034")
doc.recompute()

body34.Placement = App.Placement(V(0, 0, 0), App.Rotation(V(0, 1, 0), 359.999995))
boolean32 = doc.addObject("PartDesign::Boolean", "Boolean031")
body35.addObject(boolean32)
boolean32.Type = "Fuse"
boolean32.addObjects([body34])
body36 = doc.addObject("PartDesign::Body", "Body035")
doc.recompute()

body35.Placement = App.Placement(V(29.8503, 50.5822, -11), App.Rotation(V(0, 0, 1), 349.000003))
boolean33 = doc.addObject("PartDesign::Boolean", "Boolean032")
body36.addObject(boolean33)
boolean33.Type = "Fuse"
boolean33.addObjects([body35])
body37 = doc.addObject("PartDesign::Body", "Body036")

sketch16 = doc.addObject("Sketcher::SketchObject", "Sketch015")
body37.addObject(sketch16)
sketch16.AttachmentSupport = (doc.getObject("XY_Plane036"), [""])
sketch16.MapMode = "FlatFace"
sketch16.AttachmentOffset = App.Placement(V(0, 0, -15), App.Rotation())
sketch16.addGeometry([
    Part.LineSegment(V(29.5, 49.8, 0), V(29.5, 39.8, 0)),
    Part.LineSegment(V(29.5, 39.8, 0), V(31.4, 39.8, 0)),
    Part.LineSegment(V(31.4, 39.8, 0), V(31.4, 49.8, 0)),
    Part.LineSegment(V(31.4, 49.8, 0), V(29.5, 49.8, 0)),
], False)
sketch16.addConstraint([
    Sketcher.Constraint("Coincident", 0, 2, 1, 1),
    Sketcher.Constraint("Coincident", 1, 2, 2, 1),
    Sketcher.Constraint("Coincident", 2, 2, 3, 1),
    Sketcher.Constraint("Coincident", 3, 2, 0, 1),
    Sketcher.Constraint("Vertical", 0),
    Sketcher.Constraint("Horizontal", 1),
    Sketcher.Constraint("Vertical", 2),
    Sketcher.Constraint("Horizontal", 3),
    Sketcher.Constraint("DistanceY", 0, 2, 0, 1, 10.0),
    Sketcher.Constraint("DistanceX", 1, 1, 1, 2, 1.9),
    Sketcher.Constraint("DistanceX", -1, 1, 0, 2, 29.5),
    Sketcher.Constraint("DistanceY", -1, 1, 0, 2, 39.75),
])
sketch16.setExpression("Constraints[8]", "Params.sketch16_height")
sketch16.setExpression("Constraints[9]", "Params.sketch16_width")
pad16 = doc.addObject("PartDesign::Pad", "Pad015")
body37.addObject(pad16)
pad16.Profile = sketch16
pad16.setExpression("Length", "Params.pad16_length")
doc.recompute()

boolean34 = doc.addObject("PartDesign::Boolean", "Boolean033")
body37.addObject(boolean34)
boolean34.Type = "Cut"
boolean34.addObjects([body36])
doc.recompute()

boolean35 = doc.addObject("PartDesign::Boolean", "Boolean034")
body37.addObject(boolean35)
boolean35.Type = "Fuse"
boolean35.addObjects([body31])
doc.recompute()

boolean36 = doc.addObject("PartDesign::Boolean", "Boolean035")
body37.addObject(boolean36)
boolean36.Type = "Fuse"
boolean36.addObjects([body32])

doc.recompute()
